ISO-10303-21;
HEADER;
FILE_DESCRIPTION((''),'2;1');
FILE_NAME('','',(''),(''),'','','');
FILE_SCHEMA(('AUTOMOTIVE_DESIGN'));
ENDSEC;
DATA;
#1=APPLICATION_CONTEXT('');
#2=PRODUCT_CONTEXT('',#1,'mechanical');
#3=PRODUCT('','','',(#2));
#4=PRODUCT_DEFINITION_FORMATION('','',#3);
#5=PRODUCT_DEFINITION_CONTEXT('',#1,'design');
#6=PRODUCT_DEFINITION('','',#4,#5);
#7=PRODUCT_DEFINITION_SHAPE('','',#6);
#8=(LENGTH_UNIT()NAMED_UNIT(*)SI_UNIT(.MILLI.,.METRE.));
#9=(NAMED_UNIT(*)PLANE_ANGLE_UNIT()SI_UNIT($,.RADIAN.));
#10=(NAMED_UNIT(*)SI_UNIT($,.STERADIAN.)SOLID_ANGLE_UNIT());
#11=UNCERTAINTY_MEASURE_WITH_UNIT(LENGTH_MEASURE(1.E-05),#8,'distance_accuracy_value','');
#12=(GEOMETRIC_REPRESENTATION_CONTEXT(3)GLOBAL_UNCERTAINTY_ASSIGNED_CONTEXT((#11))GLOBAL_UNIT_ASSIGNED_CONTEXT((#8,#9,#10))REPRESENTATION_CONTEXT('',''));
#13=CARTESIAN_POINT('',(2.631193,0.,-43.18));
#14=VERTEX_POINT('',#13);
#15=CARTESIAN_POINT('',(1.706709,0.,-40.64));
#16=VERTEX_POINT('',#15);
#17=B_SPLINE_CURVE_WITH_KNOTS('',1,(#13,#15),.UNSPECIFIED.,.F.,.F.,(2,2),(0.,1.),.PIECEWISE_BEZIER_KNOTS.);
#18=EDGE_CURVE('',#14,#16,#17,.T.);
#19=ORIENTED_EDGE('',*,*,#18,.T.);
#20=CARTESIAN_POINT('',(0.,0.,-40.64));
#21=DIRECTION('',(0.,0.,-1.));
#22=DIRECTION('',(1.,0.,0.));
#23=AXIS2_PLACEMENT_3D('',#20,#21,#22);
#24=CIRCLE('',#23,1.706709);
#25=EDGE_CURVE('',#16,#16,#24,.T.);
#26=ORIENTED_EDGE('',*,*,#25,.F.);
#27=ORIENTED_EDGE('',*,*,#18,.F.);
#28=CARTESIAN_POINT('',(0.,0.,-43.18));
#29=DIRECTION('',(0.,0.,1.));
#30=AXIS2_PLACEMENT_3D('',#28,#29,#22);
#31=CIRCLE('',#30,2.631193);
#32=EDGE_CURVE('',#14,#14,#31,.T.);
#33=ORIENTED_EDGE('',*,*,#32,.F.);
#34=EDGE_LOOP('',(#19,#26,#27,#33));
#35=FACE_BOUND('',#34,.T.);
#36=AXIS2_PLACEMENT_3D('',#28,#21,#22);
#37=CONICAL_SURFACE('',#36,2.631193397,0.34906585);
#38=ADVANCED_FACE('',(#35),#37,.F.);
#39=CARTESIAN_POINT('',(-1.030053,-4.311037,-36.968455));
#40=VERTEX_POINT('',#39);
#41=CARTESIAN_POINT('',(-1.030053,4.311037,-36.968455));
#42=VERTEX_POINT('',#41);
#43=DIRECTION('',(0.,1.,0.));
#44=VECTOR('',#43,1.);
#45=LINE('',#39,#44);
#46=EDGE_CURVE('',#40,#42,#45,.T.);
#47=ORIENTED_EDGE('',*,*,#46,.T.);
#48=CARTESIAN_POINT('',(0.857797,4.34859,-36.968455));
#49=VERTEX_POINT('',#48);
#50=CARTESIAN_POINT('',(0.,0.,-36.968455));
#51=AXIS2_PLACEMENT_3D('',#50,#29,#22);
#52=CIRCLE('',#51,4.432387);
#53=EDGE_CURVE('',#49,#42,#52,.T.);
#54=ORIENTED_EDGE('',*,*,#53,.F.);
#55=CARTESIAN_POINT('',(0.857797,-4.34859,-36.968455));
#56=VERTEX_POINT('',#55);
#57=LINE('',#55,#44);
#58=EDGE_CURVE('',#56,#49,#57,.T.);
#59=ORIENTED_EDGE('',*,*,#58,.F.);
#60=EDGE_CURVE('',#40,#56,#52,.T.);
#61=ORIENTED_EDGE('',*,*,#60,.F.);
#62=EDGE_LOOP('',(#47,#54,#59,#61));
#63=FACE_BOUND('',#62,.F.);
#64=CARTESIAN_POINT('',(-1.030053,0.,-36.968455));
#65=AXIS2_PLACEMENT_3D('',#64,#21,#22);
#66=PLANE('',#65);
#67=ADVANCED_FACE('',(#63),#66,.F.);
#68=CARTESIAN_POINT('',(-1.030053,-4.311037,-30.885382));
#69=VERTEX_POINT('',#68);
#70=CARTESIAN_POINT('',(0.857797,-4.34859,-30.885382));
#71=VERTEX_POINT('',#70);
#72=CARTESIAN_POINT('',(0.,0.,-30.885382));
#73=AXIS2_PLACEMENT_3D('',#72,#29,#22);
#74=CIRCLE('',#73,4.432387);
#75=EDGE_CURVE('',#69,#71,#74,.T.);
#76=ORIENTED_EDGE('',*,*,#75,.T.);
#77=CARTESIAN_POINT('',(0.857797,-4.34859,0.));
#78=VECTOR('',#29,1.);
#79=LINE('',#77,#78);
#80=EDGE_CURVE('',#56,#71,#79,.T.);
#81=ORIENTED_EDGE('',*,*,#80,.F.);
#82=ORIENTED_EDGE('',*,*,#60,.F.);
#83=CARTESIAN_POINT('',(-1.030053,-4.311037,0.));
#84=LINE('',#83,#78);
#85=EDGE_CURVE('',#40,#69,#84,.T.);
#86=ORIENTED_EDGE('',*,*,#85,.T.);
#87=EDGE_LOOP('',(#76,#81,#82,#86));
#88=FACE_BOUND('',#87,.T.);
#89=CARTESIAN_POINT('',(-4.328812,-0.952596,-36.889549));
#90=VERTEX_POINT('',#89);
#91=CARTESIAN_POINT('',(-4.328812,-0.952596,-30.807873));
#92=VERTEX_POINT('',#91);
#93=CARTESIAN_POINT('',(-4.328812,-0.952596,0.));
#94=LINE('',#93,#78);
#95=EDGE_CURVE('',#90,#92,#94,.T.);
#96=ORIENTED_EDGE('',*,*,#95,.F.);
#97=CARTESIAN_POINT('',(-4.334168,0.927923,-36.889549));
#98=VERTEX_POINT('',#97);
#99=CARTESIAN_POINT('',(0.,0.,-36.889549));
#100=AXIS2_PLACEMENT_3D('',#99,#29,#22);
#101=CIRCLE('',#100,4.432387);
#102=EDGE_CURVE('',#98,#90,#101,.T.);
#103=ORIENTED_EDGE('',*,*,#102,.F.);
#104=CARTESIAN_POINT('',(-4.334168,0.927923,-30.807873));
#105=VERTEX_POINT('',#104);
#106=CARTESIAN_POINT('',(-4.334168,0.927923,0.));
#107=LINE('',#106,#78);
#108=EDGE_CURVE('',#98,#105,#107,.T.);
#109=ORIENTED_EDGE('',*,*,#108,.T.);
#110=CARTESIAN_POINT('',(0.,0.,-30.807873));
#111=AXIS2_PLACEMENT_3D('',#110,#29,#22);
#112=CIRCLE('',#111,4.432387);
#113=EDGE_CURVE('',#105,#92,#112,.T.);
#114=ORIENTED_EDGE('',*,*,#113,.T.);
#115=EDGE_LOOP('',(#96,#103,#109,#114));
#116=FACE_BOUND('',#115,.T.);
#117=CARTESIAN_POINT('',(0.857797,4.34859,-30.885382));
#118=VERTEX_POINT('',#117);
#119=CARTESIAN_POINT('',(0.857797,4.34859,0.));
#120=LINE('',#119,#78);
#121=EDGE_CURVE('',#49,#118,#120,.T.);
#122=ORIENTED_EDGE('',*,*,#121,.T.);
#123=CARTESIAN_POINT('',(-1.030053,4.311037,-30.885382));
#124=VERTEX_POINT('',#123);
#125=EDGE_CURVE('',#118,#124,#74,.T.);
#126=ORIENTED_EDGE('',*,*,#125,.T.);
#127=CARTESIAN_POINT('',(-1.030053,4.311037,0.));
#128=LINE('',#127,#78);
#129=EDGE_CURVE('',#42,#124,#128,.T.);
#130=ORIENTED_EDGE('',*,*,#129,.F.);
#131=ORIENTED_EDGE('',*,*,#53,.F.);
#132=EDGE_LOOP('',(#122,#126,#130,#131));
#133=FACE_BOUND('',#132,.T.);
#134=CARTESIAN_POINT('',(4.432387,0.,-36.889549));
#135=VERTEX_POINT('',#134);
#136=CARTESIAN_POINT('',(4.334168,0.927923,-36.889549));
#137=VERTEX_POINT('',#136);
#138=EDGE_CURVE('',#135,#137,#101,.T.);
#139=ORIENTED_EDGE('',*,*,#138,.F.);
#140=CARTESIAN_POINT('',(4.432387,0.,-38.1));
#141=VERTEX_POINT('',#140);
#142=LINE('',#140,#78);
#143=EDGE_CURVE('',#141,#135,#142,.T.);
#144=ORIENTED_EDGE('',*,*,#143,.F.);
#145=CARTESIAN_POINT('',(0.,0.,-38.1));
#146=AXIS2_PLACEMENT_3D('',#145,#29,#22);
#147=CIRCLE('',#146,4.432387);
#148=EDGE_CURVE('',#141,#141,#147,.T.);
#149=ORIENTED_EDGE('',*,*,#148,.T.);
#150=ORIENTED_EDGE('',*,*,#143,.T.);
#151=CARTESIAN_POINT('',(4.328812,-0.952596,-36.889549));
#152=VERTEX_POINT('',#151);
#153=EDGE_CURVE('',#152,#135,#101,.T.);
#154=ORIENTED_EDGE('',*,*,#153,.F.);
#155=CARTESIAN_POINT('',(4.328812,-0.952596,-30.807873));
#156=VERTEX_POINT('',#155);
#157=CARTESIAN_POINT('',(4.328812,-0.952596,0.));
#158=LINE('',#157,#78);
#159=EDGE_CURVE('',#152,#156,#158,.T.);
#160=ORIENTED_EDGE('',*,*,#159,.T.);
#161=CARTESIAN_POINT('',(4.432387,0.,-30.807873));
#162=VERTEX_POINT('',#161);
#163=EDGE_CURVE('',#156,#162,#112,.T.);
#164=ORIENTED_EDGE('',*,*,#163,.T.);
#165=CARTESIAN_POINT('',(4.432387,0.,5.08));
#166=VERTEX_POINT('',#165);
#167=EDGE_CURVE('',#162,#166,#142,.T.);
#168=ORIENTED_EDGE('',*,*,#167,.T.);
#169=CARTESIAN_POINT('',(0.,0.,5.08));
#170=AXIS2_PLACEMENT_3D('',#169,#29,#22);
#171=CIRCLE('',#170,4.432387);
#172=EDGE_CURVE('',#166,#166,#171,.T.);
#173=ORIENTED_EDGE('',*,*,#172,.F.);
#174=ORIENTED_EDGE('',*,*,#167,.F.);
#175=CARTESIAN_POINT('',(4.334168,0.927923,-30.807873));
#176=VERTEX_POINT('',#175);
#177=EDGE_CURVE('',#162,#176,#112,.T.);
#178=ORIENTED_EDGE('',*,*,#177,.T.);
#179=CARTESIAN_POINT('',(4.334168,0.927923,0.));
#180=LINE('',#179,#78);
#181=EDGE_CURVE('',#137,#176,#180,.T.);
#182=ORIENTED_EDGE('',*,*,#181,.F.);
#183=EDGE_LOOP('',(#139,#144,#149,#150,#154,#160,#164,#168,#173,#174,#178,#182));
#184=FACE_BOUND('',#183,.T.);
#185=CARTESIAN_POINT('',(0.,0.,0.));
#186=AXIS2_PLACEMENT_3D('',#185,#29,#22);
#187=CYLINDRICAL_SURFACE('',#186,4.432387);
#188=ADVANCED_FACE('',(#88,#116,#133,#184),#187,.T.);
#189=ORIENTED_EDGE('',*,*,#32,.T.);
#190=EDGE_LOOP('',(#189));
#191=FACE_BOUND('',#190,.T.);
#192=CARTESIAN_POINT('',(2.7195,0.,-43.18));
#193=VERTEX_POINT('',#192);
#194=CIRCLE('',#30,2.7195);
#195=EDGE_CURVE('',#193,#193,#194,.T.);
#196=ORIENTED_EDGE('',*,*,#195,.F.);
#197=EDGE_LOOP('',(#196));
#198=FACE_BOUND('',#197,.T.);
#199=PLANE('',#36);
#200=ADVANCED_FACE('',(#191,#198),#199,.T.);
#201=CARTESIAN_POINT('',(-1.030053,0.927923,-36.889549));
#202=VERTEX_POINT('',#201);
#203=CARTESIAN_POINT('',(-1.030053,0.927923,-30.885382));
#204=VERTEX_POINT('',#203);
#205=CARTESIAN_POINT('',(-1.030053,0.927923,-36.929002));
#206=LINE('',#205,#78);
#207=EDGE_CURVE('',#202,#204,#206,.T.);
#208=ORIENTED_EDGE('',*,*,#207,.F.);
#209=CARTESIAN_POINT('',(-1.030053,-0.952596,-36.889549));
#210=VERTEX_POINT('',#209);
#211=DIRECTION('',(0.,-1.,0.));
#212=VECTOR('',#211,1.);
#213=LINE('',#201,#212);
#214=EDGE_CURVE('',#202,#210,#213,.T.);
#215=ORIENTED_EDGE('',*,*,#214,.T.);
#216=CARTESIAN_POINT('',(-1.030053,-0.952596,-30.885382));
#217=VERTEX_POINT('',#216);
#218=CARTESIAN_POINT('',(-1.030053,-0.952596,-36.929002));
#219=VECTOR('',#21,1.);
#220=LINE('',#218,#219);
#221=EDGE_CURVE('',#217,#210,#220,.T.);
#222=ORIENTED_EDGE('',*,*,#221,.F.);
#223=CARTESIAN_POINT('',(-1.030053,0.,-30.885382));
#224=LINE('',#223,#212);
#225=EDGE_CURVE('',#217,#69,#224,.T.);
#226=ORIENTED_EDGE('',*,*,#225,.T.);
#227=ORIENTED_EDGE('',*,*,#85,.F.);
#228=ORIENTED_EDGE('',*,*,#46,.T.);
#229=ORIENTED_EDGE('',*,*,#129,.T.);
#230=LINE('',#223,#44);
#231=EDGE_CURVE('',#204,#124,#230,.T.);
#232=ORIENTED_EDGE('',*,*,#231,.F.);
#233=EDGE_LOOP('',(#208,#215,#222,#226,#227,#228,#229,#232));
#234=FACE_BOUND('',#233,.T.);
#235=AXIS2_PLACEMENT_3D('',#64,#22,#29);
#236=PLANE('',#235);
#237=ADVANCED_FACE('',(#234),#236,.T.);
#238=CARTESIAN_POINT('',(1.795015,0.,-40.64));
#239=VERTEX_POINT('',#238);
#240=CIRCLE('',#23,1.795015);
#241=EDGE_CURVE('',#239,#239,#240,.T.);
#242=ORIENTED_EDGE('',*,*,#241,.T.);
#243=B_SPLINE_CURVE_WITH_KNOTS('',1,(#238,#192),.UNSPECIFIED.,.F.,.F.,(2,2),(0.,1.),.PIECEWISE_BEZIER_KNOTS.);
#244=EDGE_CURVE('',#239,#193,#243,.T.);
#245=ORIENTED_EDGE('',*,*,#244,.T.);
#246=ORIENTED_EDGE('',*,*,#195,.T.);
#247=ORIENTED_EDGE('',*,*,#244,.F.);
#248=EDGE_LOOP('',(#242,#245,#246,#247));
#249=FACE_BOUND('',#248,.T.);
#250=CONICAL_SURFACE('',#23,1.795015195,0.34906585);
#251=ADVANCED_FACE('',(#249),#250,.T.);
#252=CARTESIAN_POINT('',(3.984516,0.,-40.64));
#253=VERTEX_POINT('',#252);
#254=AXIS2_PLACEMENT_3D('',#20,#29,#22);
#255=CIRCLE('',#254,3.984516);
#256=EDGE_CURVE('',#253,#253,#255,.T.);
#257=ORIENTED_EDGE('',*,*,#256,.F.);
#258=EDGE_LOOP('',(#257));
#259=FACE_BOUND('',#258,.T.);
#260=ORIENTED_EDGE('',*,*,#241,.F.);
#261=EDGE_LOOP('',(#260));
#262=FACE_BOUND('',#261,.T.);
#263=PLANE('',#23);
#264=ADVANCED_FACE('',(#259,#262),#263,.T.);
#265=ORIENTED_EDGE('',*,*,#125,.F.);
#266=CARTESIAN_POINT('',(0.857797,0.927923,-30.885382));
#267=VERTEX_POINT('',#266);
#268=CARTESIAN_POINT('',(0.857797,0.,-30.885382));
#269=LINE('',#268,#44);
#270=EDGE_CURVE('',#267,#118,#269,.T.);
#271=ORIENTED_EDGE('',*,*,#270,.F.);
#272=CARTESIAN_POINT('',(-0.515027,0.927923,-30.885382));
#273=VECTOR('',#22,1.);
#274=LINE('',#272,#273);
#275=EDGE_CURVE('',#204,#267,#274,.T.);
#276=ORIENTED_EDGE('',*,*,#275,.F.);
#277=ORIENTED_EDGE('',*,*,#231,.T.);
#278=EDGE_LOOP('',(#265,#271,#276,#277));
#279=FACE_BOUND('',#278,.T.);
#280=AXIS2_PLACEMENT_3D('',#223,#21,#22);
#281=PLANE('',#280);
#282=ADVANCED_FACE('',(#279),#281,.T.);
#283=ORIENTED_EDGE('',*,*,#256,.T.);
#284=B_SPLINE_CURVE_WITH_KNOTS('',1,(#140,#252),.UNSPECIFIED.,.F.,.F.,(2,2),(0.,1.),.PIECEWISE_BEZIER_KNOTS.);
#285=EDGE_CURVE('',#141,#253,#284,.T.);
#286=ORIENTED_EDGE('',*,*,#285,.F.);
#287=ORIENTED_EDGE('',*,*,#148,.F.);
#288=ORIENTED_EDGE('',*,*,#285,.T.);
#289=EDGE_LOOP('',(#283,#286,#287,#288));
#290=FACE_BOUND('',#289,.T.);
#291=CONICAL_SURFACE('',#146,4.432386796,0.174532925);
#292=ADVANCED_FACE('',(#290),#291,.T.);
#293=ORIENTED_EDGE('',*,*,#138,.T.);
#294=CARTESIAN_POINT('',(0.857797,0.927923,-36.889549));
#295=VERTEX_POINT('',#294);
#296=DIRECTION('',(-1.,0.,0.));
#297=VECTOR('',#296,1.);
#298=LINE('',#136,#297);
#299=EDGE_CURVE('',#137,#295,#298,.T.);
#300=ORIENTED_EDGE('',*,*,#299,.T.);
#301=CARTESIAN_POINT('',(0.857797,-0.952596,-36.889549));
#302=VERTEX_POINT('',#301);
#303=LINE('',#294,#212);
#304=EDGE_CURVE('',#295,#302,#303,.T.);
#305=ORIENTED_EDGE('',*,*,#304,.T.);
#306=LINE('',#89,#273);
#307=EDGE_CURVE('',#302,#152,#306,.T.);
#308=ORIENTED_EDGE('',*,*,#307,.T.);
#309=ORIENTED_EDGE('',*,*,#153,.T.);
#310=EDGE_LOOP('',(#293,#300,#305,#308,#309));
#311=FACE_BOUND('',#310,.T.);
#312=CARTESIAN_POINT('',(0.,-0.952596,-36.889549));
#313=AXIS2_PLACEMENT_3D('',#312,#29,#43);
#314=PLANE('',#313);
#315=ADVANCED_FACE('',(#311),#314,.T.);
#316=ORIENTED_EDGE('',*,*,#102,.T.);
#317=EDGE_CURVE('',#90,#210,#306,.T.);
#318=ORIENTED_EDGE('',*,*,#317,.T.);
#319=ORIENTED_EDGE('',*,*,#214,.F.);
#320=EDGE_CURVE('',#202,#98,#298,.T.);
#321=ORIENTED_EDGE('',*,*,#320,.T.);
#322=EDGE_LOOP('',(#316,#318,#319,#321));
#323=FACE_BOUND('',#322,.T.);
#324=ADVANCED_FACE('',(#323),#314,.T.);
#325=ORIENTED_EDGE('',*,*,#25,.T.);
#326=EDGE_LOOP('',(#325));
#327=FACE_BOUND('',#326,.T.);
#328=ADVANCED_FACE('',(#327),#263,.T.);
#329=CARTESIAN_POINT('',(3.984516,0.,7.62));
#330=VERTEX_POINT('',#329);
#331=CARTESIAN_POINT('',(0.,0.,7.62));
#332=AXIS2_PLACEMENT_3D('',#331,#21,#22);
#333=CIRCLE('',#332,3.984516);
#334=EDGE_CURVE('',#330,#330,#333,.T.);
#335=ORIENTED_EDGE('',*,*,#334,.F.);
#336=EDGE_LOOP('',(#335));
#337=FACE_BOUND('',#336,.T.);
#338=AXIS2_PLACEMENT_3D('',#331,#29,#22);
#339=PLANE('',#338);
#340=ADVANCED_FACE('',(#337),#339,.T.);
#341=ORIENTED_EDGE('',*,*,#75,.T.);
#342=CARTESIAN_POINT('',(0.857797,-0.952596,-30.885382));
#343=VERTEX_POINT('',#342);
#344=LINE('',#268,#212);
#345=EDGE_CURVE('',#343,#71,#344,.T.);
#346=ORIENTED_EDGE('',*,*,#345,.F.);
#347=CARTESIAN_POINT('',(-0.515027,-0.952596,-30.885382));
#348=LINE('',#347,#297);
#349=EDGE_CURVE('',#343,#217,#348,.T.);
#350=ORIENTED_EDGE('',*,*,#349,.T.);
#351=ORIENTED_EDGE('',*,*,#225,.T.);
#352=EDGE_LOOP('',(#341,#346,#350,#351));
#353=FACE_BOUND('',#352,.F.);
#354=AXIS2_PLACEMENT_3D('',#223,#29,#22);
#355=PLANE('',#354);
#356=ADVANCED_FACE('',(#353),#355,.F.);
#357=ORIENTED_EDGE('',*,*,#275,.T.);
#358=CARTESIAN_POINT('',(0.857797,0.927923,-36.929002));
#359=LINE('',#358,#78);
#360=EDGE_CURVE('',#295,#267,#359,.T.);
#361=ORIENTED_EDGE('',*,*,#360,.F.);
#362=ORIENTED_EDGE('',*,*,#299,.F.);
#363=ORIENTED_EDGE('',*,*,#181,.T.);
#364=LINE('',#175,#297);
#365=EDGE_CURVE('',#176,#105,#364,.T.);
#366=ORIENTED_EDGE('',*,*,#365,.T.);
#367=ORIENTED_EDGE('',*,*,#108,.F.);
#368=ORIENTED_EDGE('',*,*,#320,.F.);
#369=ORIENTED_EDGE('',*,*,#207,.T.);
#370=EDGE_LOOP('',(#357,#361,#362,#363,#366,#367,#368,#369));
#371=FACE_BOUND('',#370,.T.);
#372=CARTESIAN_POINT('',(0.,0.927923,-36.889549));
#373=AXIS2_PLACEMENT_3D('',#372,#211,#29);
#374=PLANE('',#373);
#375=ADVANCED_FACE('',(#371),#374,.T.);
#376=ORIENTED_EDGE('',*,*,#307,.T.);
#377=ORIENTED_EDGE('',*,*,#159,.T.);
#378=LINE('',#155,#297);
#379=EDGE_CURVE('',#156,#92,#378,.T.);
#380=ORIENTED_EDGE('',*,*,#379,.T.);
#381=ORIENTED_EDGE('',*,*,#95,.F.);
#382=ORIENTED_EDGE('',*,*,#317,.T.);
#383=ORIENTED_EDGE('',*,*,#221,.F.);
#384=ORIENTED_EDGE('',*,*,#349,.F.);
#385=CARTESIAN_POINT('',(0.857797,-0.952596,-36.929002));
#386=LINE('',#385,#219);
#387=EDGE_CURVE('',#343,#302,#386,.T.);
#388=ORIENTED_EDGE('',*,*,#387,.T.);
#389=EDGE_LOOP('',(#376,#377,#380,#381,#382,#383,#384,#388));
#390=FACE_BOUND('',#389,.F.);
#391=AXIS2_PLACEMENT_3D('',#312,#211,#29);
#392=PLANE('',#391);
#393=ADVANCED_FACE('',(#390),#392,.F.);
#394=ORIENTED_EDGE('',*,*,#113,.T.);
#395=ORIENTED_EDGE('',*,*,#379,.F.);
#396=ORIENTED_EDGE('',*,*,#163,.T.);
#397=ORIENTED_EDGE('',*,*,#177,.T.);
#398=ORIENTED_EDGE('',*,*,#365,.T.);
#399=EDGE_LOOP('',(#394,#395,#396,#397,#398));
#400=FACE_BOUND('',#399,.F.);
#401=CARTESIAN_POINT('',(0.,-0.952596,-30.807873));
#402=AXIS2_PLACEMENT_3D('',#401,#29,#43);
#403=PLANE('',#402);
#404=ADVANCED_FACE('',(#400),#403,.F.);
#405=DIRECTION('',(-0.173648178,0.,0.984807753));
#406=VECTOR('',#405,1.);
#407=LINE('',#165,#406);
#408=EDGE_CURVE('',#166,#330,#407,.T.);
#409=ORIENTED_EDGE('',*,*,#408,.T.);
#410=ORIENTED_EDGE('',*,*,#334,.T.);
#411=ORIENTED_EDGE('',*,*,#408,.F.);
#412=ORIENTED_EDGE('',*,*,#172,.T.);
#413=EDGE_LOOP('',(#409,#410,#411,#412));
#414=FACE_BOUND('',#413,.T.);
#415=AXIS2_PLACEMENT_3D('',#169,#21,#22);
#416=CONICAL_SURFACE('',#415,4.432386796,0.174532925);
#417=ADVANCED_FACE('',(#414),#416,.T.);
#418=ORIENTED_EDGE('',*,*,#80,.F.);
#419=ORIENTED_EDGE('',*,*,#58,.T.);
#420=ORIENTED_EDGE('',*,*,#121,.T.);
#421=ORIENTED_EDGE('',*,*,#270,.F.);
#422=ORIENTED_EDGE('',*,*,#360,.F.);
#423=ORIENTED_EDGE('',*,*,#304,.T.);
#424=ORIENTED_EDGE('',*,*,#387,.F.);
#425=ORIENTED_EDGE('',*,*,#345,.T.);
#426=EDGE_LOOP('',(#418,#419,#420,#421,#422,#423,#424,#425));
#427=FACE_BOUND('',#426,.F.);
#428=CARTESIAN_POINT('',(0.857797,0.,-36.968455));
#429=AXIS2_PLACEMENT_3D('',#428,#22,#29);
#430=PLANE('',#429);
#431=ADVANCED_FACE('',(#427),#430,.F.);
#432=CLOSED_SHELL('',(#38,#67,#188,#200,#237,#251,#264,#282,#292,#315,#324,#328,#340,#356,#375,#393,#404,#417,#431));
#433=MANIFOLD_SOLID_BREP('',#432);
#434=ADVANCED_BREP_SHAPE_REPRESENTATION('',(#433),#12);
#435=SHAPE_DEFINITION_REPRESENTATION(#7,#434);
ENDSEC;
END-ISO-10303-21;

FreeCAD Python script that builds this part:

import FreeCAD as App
import Part
import Sketcher

V = App.Vector
Q = App.Units.Quantity


def add_polygon(sketch, points):
    """Adds a closed chain of lines whose ends are joined by coincident constraints."""
    first, n = sketch.GeometryCount, len(points)
    for a, b in zip(points, points[1:] + points[:1]):
        sketch.addGeometry(Part.LineSegment(App.Vector(*a, 0), App.Vector(*b, 0)), False)
    for i in range(n):
        sketch.addConstraint(Sketcher.Constraint("Coincident", first + i, 2, first + (i + 1) % n, 1))

doc = App.newDocument("Part")
body = doc.addObject("PartDesign::Body", "Body")

# Sketch on XY plane
sketch1 = doc.addObject("Sketcher::SketchObject", "Sketch")
body.addObject(sketch1)
sketch1.AttachmentSupport = (doc.XY_Plane, [""])
sketch1.MapMode = "FlatFace"
sketch1.addGeometry(Part.Circle(V(0, 0, 0), V(0, 0, 1), 4.432387), False)
sketch1.addConstraint([
    Sketcher.Constraint("Coincident", 0, 3, -1, 1),
    Sketcher.Constraint("Diameter", 0, Q("8.864774 mm")),
])
pad1 = doc.addObject("PartDesign::Pad", "Pad")
body.addObject(pad1)
pad1.Profile = sketch1
pad1.Type = "TwoLengths"
pad1.Length = Q("0.2 in")
pad1.Length2 = Q("1.5 in")

# Sketch on XY plane
sketch2 = doc.addObject("Sketcher::SketchObject", "Sketch001")
body.addObject(sketch2)
sketch2.AttachmentSupport = (doc.XY_Plane, [""])
sketch2.MapMode = "FlatFace"
sketch2.AttachmentOffset = App.Placement(V(0, 0, -1.5 * 25.4), App.Rotation())
sketch2.addGeometry(Part.Circle(V(0, 0, 0), V(0, 0, 1), 4.432387), False)
sketch2.addConstraint([
    Sketcher.Constraint("Coincident", 0, 3, -1, 1),
    Sketcher.Constraint("Diameter", 0, Q("8.864774 mm")),
])
pad2 = doc.addObject("PartDesign::Pad", "Pad001")
body.addObject(pad2)
pad2.Profile = sketch2
pad2.Length = Q("0.1 in")
pad2.Reversed = True
pad2.TaperAngle = -10

# Sketch on XY plane
sketch3 = doc.addObject("Sketcher::SketchObject", "Sketch002")
body.addObject(sketch3)
sketch3.AttachmentSupport = (doc.XY_Plane, [""])
sketch3.MapMode = "FlatFace"
sketch3.AttachmentOffset = App.Placement(V(0, 0, 0.2 * 25.4), App.Rotation())
sketch3.addGeometry(Part.Circle(V(0, 0, 0), V(0, 0, 1), 4.432387), False)
sketch3.addConstraint([
    Sketcher.Constraint("Coincident", 0, 3, -1, 1),
    Sketcher.Constraint("Diameter", 0, Q("8.864774 mm")),
])
pad3 = doc.addObject("PartDesign::Pad", "Pad002")
body.addObject(pad3)
pad3.Profile = sketch3
pad3.Length = Q("0.1 in")
pad3.TaperAngle = -10

# Sketch on XY plane
sketch4 = doc.addObject("Sketcher::SketchObject", "Sketch003")
body.addObject(sketch4)
sketch4.AttachmentSupport = (doc.XY_Plane, [""])
sketch4.MapMode = "FlatFace"
sketch4.AttachmentOffset = App.Placement(V(0, 0, -1.6 * 25.4), App.Rotation())
sketch4.addGeometry(Part.Circle(V(0, 0, 0), V(0, 0, 1), 1.795015), False)
sketch4.addConstraint([
    Sketcher.Constraint("Coincident", 0, 3, -1, 1),
    Sketcher.Constraint("Diameter", 0, Q("3.59003 mm")),
])
pad4 = doc.addObject("PartDesign::Pad", "Pad003")
body.addObject(pad4)
pad4.Profile = sketch4
pad4.Length = Q("0.1 in")
pad4.Reversed = True
pad4.TaperAngle = 20

# Sketch on XY plane
sketch5 = doc.addObject("Sketcher::SketchObject", "Sketch004")
body.addObject(sketch5)
sketch5.AttachmentSupport = (doc.XY_Plane, [""])
sketch5.MapMode = "FlatFace"
sketch5.AttachmentOffset = App.Placement(V(0, 0, -1.7 * 25.4), App.Rotation())
sketch5.addGeometry(Part.Circle(V(0, 0, 0), V(0, 0, 1), 2.631193), False)
sketch5.addConstraint([
    Sketcher.Constraint("Coincident", 0, 3, -1, 1),
    Sketcher.Constraint("Diameter", 0, Q("5.262387 mm")),
])
pocket1 = doc.addObject("PartDesign::Pocket", "Pocket")
body.addObject(pocket1)
pocket1.Profile = sketch5
pocket1.Length = Q("0.1 in")
pocket1.Reversed = True
pocket1.TaperAngle = -20

# Sketch on YZ plane
sketch6 = doc.addObject("Sketcher::SketchObject", "Sketch005")
body.addObject(sketch6)
sketch6.AttachmentSupport = (doc.YZ_Plane, [""])
sketch6.MapMode = "FlatFace"
add_polygon(sketch6, [(-0.952596, -30.807873), (-0.952596, -36.889549), (0.927923, -36.889549), (0.927923, -30.807873)])  # lines 0-3
sketch6.addConstraint([
    Sketcher.Constraint("Vertical", 0),
    Sketcher.Constraint("Horizontal", 1),
    Sketcher.Constraint("Vertical", 2),
    Sketcher.Constraint("Horizontal", 3),
    Sketcher.Constraint("DistanceX", 1, 1, 1, 2, Q("1.880518 mm")),
    Sketcher.Constraint("DistanceY", 0, 2, 0, 1, Q("6.081676 mm")),
    Sketcher.Constraint("DistanceY", 0, 2, -1, 1, Q("36.889549 mm")),
    Sketcher.Constraint("DistanceX", 0, 2, -1, 1, Q("0.952596 mm")),
])
pocket2 = doc.addObject("PartDesign::Pocket", "Pocket001")
body.addObject(pocket2)
pocket2.Profile = sketch6
pocket2.Type = "ThroughAll"
pocket2.Midplane = True

# Sketch on XZ plane
sketch7 = doc.addObject("Sketcher::SketchObject", "Sketch006")
body.addObject(sketch7)
sketch7.AttachmentSupport = (doc.XZ_Plane, [""])
sketch7.MapMode = "FlatFace"
add_polygon(sketch7, [(-1.030053, -30.885382), (-1.030053, -36.968455), (0.857797, -36.968455), (0.857797, -30.885382)])  # lines 0-3
sketch7.addConstraint([
    Sketcher.Constraint("Vertical", 0),
    Sketcher.Constraint("Horizontal", 1),
    Sketcher.Constraint("Vertical", 2),
    Sketcher.Constraint("Horizontal", 3),
    Sketcher.Constraint("DistanceX", 1, 1, 1, 2, Q("1.88785 mm")),
    Sketcher.Constraint("DistanceY", 0, 2, 0, 1, Q("6.083073 mm")),
    Sketcher.Constraint("DistanceY", 2, 2, -1, 1, Q("30.885382 mm")),
    Sketcher.Constraint("DistanceX", 0, 2, -1, 1, Q("1.030053 mm")),
])
pocket3 = doc.addObject("PartDesign::Pocket", "Pocket002")
body.addObject(pocket3)
pocket3.Profile = sketch7
pocket3.Type = "ThroughAll"
pocket3.Midplane = True

doc.recompute()
